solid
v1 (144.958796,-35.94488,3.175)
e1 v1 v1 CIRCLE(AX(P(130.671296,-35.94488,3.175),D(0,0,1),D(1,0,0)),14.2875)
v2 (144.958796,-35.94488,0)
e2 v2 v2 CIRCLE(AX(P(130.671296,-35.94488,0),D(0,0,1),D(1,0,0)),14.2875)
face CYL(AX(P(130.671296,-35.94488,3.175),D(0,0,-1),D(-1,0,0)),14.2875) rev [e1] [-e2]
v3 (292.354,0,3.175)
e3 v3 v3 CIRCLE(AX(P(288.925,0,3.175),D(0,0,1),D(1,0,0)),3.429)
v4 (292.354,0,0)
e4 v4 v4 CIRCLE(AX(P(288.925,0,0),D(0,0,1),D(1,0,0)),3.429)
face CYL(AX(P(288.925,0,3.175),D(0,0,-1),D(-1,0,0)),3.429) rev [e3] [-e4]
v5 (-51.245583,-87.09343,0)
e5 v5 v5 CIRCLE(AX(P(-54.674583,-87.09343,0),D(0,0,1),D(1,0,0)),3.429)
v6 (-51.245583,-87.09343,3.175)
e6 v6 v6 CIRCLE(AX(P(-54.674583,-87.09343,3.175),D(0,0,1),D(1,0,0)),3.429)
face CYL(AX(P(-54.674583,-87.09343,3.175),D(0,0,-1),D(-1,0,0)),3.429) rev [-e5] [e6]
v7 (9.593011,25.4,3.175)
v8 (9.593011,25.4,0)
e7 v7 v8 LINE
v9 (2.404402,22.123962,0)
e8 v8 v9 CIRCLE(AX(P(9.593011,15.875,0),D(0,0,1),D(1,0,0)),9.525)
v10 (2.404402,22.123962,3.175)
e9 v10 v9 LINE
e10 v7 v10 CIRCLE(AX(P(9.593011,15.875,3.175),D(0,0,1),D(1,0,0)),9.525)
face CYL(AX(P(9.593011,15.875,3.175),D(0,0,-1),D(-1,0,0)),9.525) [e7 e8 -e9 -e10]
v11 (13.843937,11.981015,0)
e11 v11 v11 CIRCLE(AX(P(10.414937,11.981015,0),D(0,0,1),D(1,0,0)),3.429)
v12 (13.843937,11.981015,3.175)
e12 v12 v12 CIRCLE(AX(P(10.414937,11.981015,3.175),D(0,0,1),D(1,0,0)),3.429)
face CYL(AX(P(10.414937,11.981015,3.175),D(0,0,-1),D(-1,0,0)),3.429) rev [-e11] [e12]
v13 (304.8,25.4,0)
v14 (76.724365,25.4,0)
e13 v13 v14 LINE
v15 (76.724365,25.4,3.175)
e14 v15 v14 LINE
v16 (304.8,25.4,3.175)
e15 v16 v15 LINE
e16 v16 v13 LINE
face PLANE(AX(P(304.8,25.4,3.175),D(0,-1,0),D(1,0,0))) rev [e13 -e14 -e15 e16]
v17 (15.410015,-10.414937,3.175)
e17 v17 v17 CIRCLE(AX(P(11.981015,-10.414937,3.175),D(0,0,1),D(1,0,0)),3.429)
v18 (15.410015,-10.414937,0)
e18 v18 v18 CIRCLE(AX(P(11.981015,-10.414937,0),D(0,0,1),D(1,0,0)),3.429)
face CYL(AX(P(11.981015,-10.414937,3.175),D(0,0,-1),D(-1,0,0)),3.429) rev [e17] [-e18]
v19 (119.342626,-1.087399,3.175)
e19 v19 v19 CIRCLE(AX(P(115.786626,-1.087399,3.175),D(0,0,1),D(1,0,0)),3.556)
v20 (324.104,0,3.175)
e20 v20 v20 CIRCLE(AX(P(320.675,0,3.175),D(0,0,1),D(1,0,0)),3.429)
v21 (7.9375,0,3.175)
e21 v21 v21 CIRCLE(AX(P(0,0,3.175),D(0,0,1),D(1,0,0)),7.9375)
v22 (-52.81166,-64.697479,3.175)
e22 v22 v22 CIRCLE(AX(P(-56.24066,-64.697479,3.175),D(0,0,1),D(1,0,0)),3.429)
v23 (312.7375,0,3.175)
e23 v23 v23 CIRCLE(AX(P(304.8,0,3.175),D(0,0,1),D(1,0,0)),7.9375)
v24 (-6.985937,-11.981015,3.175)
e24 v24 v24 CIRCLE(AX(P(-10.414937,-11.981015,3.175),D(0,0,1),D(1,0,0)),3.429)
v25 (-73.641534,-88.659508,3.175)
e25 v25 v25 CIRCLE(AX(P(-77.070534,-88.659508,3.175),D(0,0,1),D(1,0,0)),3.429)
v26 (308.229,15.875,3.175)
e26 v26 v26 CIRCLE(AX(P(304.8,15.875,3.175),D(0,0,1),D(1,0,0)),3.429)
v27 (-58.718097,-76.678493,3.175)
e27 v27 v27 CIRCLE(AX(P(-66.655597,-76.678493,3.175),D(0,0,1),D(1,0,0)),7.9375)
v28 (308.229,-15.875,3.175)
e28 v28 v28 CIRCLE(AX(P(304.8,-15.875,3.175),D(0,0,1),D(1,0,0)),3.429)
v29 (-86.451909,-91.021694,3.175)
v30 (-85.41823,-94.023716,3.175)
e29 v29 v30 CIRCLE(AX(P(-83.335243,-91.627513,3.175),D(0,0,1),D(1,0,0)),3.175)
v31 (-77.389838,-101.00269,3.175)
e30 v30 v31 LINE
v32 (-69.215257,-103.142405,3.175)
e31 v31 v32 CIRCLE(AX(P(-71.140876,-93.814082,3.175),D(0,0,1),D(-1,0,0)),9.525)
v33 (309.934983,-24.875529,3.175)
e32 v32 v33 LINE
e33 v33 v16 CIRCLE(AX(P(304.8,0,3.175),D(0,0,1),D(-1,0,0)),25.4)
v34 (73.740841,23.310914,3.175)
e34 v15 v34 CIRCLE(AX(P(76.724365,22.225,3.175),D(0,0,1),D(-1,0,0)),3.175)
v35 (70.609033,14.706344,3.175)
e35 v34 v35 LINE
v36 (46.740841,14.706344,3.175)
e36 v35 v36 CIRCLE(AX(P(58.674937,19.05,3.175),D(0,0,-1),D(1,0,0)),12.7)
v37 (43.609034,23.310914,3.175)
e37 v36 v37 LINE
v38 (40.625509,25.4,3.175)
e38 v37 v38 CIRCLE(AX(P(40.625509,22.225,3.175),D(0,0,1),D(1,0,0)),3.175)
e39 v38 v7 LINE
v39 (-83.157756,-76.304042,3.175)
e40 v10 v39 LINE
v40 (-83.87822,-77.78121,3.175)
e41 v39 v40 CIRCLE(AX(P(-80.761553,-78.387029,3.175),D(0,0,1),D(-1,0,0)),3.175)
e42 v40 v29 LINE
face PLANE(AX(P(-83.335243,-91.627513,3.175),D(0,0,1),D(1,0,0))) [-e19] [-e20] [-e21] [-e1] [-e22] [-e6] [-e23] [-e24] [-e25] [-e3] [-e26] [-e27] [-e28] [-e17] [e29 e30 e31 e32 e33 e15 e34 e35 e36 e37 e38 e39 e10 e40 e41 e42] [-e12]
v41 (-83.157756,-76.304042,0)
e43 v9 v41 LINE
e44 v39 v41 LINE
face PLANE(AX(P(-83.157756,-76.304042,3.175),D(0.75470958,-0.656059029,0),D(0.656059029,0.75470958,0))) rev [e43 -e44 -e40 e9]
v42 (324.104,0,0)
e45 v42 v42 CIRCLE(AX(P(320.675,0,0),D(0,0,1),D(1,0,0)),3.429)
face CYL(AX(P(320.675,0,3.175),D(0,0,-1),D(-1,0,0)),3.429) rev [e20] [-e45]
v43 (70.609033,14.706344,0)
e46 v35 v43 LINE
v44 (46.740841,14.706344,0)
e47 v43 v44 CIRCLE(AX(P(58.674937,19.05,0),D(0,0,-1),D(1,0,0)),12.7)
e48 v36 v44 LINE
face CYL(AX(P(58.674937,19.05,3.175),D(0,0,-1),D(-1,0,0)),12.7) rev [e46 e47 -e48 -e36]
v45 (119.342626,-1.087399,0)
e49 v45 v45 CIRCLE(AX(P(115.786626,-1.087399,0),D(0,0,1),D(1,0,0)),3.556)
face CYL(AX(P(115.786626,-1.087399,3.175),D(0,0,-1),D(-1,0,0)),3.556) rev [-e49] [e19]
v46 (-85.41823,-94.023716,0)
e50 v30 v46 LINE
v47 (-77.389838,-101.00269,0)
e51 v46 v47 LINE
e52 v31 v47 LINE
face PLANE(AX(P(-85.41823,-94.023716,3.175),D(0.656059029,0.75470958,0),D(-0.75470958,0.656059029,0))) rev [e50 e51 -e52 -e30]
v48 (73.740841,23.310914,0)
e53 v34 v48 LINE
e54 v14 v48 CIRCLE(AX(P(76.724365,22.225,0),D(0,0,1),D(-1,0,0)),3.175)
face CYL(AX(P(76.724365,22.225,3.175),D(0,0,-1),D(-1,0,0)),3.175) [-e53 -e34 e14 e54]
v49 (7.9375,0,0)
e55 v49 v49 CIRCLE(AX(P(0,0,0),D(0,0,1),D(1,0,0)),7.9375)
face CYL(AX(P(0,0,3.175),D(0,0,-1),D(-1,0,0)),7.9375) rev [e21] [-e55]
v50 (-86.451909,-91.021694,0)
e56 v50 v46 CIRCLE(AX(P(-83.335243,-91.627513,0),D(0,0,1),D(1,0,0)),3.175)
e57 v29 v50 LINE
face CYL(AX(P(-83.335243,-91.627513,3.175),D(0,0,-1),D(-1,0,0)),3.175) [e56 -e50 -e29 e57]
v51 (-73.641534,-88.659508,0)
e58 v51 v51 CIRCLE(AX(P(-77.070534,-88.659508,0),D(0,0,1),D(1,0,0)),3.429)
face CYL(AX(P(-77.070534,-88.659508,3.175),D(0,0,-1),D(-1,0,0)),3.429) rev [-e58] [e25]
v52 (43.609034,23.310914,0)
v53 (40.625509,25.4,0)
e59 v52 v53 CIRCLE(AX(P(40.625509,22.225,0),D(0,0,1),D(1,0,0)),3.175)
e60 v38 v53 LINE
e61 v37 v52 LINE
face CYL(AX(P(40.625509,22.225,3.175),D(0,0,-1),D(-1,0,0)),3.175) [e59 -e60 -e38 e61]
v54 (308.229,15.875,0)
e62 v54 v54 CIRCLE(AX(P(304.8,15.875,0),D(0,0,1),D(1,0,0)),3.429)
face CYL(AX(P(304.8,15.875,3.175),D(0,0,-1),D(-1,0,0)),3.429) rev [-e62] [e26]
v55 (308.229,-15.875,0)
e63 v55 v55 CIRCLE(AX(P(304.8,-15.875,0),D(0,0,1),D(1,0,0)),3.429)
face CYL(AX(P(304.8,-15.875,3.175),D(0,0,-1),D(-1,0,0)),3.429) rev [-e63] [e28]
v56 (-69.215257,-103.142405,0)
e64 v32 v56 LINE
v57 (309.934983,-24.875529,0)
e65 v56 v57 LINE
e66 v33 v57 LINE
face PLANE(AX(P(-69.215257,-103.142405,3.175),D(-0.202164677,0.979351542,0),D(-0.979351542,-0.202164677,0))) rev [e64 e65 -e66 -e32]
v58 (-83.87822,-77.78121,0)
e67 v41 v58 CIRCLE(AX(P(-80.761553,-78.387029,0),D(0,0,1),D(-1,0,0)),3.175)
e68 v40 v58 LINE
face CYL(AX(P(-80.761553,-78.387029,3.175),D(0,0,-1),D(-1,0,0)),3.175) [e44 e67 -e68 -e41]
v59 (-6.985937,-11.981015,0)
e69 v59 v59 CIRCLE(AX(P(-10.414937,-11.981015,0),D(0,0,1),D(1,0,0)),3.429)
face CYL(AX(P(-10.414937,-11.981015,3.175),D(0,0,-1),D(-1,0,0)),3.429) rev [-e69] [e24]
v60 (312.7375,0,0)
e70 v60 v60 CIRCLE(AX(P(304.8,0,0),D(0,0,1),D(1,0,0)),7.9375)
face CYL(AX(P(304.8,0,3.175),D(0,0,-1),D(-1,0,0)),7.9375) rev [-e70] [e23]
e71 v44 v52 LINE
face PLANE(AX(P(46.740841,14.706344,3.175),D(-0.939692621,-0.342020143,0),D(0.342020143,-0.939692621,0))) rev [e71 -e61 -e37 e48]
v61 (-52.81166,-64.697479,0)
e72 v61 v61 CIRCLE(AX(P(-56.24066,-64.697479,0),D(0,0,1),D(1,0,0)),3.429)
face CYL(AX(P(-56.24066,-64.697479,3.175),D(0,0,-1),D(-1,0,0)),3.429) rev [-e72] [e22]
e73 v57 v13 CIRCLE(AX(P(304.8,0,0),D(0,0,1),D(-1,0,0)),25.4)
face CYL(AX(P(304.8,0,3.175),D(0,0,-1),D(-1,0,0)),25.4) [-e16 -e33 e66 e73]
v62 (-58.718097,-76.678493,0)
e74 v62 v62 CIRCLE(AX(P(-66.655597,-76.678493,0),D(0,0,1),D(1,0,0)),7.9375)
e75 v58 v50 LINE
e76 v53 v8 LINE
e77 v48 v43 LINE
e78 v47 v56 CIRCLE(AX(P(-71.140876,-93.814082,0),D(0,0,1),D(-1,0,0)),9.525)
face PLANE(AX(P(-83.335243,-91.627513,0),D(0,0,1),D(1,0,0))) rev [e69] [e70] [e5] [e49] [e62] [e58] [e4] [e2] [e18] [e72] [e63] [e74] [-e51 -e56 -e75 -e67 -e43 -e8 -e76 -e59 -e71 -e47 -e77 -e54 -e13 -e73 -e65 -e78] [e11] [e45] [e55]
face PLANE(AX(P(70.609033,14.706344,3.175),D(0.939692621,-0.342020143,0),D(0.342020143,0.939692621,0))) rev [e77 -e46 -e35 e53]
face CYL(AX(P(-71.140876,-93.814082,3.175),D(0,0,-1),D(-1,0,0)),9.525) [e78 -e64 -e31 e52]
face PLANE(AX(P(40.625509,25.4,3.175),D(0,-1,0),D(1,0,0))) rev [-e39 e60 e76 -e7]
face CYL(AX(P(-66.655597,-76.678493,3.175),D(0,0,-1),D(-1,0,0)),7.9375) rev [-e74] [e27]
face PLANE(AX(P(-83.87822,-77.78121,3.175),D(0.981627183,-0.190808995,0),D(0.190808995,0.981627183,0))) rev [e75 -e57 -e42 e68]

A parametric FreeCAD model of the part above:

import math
import FreeCAD as App
import Part
import Sketcher
Q = App.Units.Quantity

doc = App.newDocument("Part")
body = doc.addObject("PartDesign::Body", "Body")

# Sketch on XY plane
sketch1 = doc.addObject("Sketcher::SketchObject", "Sketch")
body.addObject(sketch1)
sketch1.AttachmentSupport = (doc.XY_Plane, [""])
sketch1.MapMode = "FlatFace"
sketch1.addGeometry([
    Part.LineSegment(App.Vector(304.8, 25.4, 0), App.Vector(76.7, 25.4, 0)),  # 0
    Part.ArcOfCircle(Part.Circle(App.Vector(76.7, 22.2, 0), App.Vector(0, 0, 1), 3.2), math.radians(90), math.radians(160)),  # 1
    Part.LineSegment(App.Vector(73.7, 23.3, 0), App.Vector(70.6, 14.7, 0)),  # 2
    Part.ArcOfCircle(Part.Circle(App.Vector(58.7, 19.1, 0), App.Vector(0, 0, 1), 12.7), math.radians(-160), math.radians(-20)),  # 3
    Part.LineSegment(App.Vector(46.7, 14.7, 0), App.Vector(43.6, 23.3, 0)),  # 4
    Part.ArcOfCircle(Part.Circle(App.Vector(40.6, 22.2, 0), App.Vector(0, 0, 1), 3.2), math.radians(20), math.radians(90)),  # 5
    Part.LineSegment(App.Vector(40.6, 25.4, 0), App.Vector(9.6, 25.4, 0)),  # 6
    Part.ArcOfCircle(Part.Circle(App.Vector(9.6, 15.9, 0), App.Vector(0, 0, 1), 9.5), math.radians(90), math.radians(139)),  # 7
    Part.LineSegment(App.Vector(2.4, 22.1, 0), App.Vector(-83.2, -76.3, 0)),  # 8
    Part.ArcOfCircle(Part.Circle(App.Vector(-80.8, -78.4, 0), App.Vector(0, 0, 1), 3.2), math.radians(139), math.radians(169)),  # 9
    Part.LineSegment(App.Vector(-83.9, -77.8, 0), App.Vector(-86.5, -91, 0)),  # 10
    Part.ArcOfCircle(Part.Circle(App.Vector(-83.3, -91.6, 0), App.Vector(0, 0, 1), 3.2), math.radians(169), math.radians(229)),  # 11
    Part.LineSegment(App.Vector(-85.4, -94, 0), App.Vector(-77.4, -101, 0)),  # 12
    Part.ArcOfCircle(Part.Circle(App.Vector(-71.1, -93.8, 0), App.Vector(0, 0, 1), 9.5), math.radians(-131), math.radians(-78)),  # 13
    Part.LineSegment(App.Vector(-69.2, -103.1, 0), App.Vector(309.9, -24.9, 0)),  # 14
    Part.ArcOfCircle(Part.Circle(App.Vector(304.8, 0, 0), App.Vector(0, 0, 1), 25.4), math.radians(-78), math.radians(90)),  # 15
    Part.Circle(App.Vector(-77.1, -88.7, 0), App.Vector(0, 0, 1), 3.4),  # 16
    Part.Circle(App.Vector(-54.7, -87.1, 0), App.Vector(0, 0, 1), 3.4),  # 17
    Part.Circle(App.Vector(-66.7, -76.7, 0), App.Vector(0, 0, 1), 7.9),  # 18
    Part.Circle(App.Vector(-56.2, -64.7, 0), App.Vector(0, 0, 1), 3.4),  # 19
    Part.Circle(App.Vector(-10.4, -12, 0), App.Vector(0, 0, 1), 3.4),  # 20
    Part.Circle(App.Vector(12, -10.4, 0), App.Vector(0, 0, 1), 3.4),  # 21
    Part.Circle(App.Vector(0, 0, 0), App.Vector(0, 0, 1), 7.9),  # 22
    Part.Circle(App.Vector(10.4, 12, 0), App.Vector(0, 0, 1), 3.4),  # 23
    Part.Circle(App.Vector(115.8, -1.1, 0), App.Vector(0, 0, 1), 3.6),  # 24
    Part.Circle(App.Vector(130.7, -35.9, 0), App.Vector(0, 0, 1), 14.3),  # 25
    Part.Circle(App.Vector(304.8, -15.9, 0), App.Vector(0, 0, 1), 3.4),  # 26
    Part.Circle(App.Vector(288.9, 0, 0), App.Vector(0, 0, 1), 3.4),  # 27
    Part.Circle(App.Vector(304.8, 0, 0), App.Vector(0, 0, 1), 7.9),  # 28
    Part.Circle(App.Vector(320.7, 0, 0), App.Vector(0, 0, 1), 3.4),  # 29
    Part.Circle(App.Vector(304.8, 15.9, 0), App.Vector(0, 0, 1), 3.4),  # 30
], False)
sketch1.addConstraint([
    Sketcher.Constraint("Tangent", 0, 2, 1, 1),
    Sketcher.Constraint("Tangent", 1, 2, 2, 1),
    Sketcher.Constraint("Tangent", 2, 2, 3, 2),
    Sketcher.Constraint("Tangent", 3, 1, 4, 1),
    Sketcher.Constraint("Tangent", 4, 2, 5, 1),
    Sketcher.Constraint("Tangent", 5, 2, 6, 1),
    Sketcher.Constraint("Tangent", 6, 2, 7, 1),
    Sketcher.Constraint("Tangent", 7, 2, 8, 1),
    Sketcher.Constraint("Tangent", 8, 2, 9, 1),
    Sketcher.Constraint("Tangent", 9, 2, 10, 1),
    Sketcher.Constraint("Tangent", 10, 2, 11, 1),
    Sketcher.Constraint("Tangent", 11, 2, 12, 1),
    Sketcher.Constraint("Tangent", 12, 2, 13, 1),
    Sketcher.Constraint("Tangent", 13, 2, 14, 1),
    Sketcher.Constraint("Tangent", 14, 2, 15, 1),
    Sketcher.Constraint("Tangent", 15, 2, 0, 1),
    Sketcher.Constraint("Horizontal", 0),
    Sketcher.Constraint("Horizontal", 6),
    Sketcher.Constraint("Coincident", 22, 3, -1, 1),
    Sketcher.Constraint("Coincident", 28, 3, 15, 3),
    Sketcher.Constraint("Equal", 1, 5),
    Sketcher.Constraint("Equal", 5, 9),
    Sketcher.Constraint("Equal", 9, 11),
    Sketcher.Constraint("Equal", 7, 13),
    Sketcher.Constraint("Equal", 16, 17),
    Sketcher.Constraint("Equal", 17, 19),
    Sketcher.Constraint("Equal", 19, 20),
    Sketcher.Constraint("Equal", 20, 21),
    Sketcher.Constraint("Equal", 18, 22),
    Sketcher.Constraint("Equal", 21, 23),
    Sketcher.Constraint("Equal", 23, 26),
    Sketcher.Constraint("Equal", 26, 27),
    Sketcher.Constraint("Equal", 22, 28),
    Sketcher.Constraint("Equal", 27, 29),
    Sketcher.Constraint("Equal", 29, 30),
    Sketcher.Constraint("Symmetric", 20, 3, 23, 3, -1, 1),
    Sketcher.Constraint("Symmetric", 26, 3, 30, 3, -1),
    Sketcher.Constraint("PointOnObject", 15, 3, -1),
    Sketcher.Constraint("PointOnObject", 27, 3, -1),
    Sketcher.Constraint("PointOnObject", 29, 3, -1),
    Sketcher.Constraint("Perpendicular", 8, 12),
    Sketcher.Constraint("Horizontal", 1, 3, 5, 3),
    Sketcher.Constraint("Horizontal", 7, 3, 30, 3),
    Sketcher.Constraint("Horizontal", 2, 2, 3, 1),
    Sketcher.Constraint("Vertical", 15, 3, 26, 3),
    Sketcher.Constraint("Radius", 15, Q("1 in")),
    Sketcher.Constraint("Radius", 3, Q("0.5 in")),
    Sketcher.Constraint("Diameter", 16, Q("0.27 in")),
    Sketcher.Constraint("Diameter", 24, Q("0.28 in")),
    Sketcher.Constraint("Diameter", 18, Q("0.625 in")),
    Sketcher.Constraint("Diameter", 25, Q("1.125 in")),
    Sketcher.Constraint("DistanceX", -1, 1, 15, 3, Q("12 in")),
    Sketcher.Constraint("Angle", 2, Q("-110 deg")),
    Sketcher.Constraint("Angle", 8, Q("-131 deg")),
    Sketcher.Constraint("Angle", 10, Q("-101 deg")),
    Sketcher.Constraint("Radius", 1, Q("0.125 in")),
    Sketcher.Constraint("Radius", 7, Q("0.375 in")),
    Sketcher.Constraint("DistanceY", -1, 1, 3, 3, Q("0.75 in")),
    Sketcher.Constraint("DistanceX", 27, 3, 29, 3, Q("1.25 in")),
    Sketcher.Constraint("DistanceX", -1, 1, 27, 3, Q("11.375 in")),
    Sketcher.Constraint("DistanceX", 6, 2, 6, 1, 31.032499),
    Sketcher.Constraint("Distance", 10, 13.488302),
    Sketcher.Constraint("DistanceY", 24, 3, -1, 1, 1.087399),
    Sketcher.Constraint("DistanceX", -1, 1, 7, 2, 2.404402),
    Sketcher.Constraint("DistanceY", 17, 3, 9, 3, 8.706401),
    Sketcher.Constraint("DistanceY", 21, 3, 7, 2, 32.538899),
    Sketcher.Constraint("Distance", 14, 387.14417),
    Sketcher.Constraint("DistanceY", 9, 3, -1, 1, 78.387029),
    Sketcher.Constraint("DistanceX", 19, 3, -1, 1, 56.24066),
    Sketcher.Constraint("DistanceY", 19, 3, -1, 1, 64.697479),
    Sketcher.Constraint("DistanceY", 25, 3, -1, 1, 35.94488),
    Sketcher.Constraint("DistanceX", 11, 3, 16, 3, 6.264708),
    Sketcher.Constraint("DistanceY", 16, 3, 9, 3, 10.272479),
    Sketcher.Constraint("DistanceX", 16, 3, 17, 3, 22.395952),
    Sketcher.Constraint("DistanceX", 13, 3, 18, 3, 4.485278),
    Sketcher.Constraint("DistanceY", 13, 3, 18, 3, 17.135588),
    Sketcher.Constraint("DistanceX", 18, 3, 20, 3, 56.24066),
    Sketcher.Constraint("DistanceY", 18, 3, 20, 3, 64.697479),
    Sketcher.Constraint("DistanceX", 20, 3, 21, 3, 22.395952),
    Sketcher.Constraint("DistanceX", 1, 3, 24, 3, 39.062261),
    Sketcher.Constraint("DistanceX", 24, 3, 25, 3, 14.88467),
])
pad1 = doc.addObject("PartDesign::Pad", "Pad")
body.addObject(pad1)
pad1.Profile = sketch1
pad1.Length = Q("0.125 in")

doc.recompute()
